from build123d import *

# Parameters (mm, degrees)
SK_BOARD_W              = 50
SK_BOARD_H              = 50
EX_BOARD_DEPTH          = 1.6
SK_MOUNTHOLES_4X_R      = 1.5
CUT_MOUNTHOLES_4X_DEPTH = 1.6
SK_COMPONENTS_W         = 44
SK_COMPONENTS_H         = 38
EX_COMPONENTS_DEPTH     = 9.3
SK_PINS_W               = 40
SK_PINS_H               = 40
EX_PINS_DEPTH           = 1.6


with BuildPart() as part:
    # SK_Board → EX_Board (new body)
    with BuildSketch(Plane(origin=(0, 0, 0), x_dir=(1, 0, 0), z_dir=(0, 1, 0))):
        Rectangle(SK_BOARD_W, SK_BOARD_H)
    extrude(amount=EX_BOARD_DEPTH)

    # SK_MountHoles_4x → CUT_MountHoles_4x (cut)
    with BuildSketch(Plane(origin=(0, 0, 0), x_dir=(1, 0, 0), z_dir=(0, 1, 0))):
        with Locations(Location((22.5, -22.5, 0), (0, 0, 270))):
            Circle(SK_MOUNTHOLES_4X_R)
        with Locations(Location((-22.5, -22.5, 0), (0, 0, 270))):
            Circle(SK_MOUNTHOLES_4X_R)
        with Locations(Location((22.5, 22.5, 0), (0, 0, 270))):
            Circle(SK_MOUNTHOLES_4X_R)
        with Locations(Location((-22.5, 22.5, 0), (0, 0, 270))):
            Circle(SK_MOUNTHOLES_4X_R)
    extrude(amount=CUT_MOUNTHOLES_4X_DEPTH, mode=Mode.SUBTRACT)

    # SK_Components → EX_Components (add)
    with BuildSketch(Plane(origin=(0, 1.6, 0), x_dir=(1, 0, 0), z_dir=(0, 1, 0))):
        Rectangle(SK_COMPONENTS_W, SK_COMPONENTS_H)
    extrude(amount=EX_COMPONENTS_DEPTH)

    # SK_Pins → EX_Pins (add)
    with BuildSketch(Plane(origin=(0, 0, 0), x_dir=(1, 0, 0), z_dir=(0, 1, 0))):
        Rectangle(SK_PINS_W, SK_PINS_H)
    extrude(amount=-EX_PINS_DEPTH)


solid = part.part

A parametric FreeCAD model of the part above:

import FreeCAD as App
import Part
import Sketcher

V = App.Vector
Q = App.Units.Quantity

doc = App.newDocument("Part")
params = doc.addObject("Spreadsheet::Sheet", "Params")
for row, (alias, value) in enumerate([
    ("sketch1_width", "50 mm"),
    ("pad1_length", "1.6 mm"),
    ("sketch2_diameter", "3 mm"),
    ("pocket1_length", "1.6 mm"),
    ("sketch3_width", "44 mm"),
    ("sketch3_height", "38 mm"),
    ("pad2_length", "9.3 mm"),
    ("sketch4_width", "40 mm"),
    ("pad3_length", "1.6 mm"),
], start=1):
    params.set(f"A{row}", alias)
    params.set(f"B{row}", "=" + value)
    params.setAlias(f"B{row}", alias)

body = doc.addObject("PartDesign::Body", "Body")

sketch1 = doc.addObject("Sketcher::SketchObject", "Sketch")
body.addObject(sketch1)
sketch1.AttachmentSupport = (doc.XZ_Plane, [""])
sketch1.MapMode = "FlatFace"
sketch1.addGeometry([
    Part.LineSegment(V(-25, -25, 0), V(-25, 25, 0)),
    Part.LineSegment(V(-25, 25, 0), V(25, 25, 0)),
    Part.LineSegment(V(25, 25, 0), V(25, -25, 0)),
    Part.LineSegment(V(25, -25, 0), V(-25, -25, 0)),
], False)
sketch1.addConstraint([
    Sketcher.Constraint("Coincident", 0, 2, 1, 1),
    Sketcher.Constraint("Coincident", 1, 2, 2, 1),
    Sketcher.Constraint("Coincident", 2, 2, 3, 1),
    Sketcher.Constraint("Coincident", 3, 2, 0, 1),
    Sketcher.Constraint("Vertical", 0),
    Sketcher.Constraint("Horizontal", 1),
    Sketcher.Constraint("Vertical", 2),
    Sketcher.Constraint("Horizontal", 3),
    Sketcher.Constraint("Symmetric", 0, 2, 2, 2, -1, 1),
    Sketcher.Constraint("Equal", 3, 0),
    Sketcher.Constraint("DistanceX", 1, 1, 1, 2, Q("50 mm")),
])
sketch1.setExpression("Constraints[10]", "Params.sketch1_width")
pad1 = doc.addObject("PartDesign::Pad", "Pad")
body.addObject(pad1)
pad1.Profile = sketch1
pad1.setExpression("Length", "Params.pad1_length")
pad1.Reversed = True

sketch2 = doc.addObject("Sketcher::SketchObject", "Sketch001")
body.addObject(sketch2)
sketch2.AttachmentSupport = (doc.XZ_Plane, [""])
sketch2.MapMode = "FlatFace"
sketch2.addGeometry([
    Part.Circle(V(22.5, 22.5, 0), V(0, 0, 1), 1.5),
    Part.Circle(V(-22.5, 22.5, 0), V(0, 0, 1), 1.5),
    Part.Circle(V(22.5, -22.5, 0), V(0, 0, 1), 1.5),
    Part.Circle(V(-22.5, -22.5, 0), V(0, 0, 1), 1.5),
], False)
sketch2.addConstraint([
    Sketcher.Constraint("Equal", 0, 1),
    Sketcher.Constraint("Equal", 1, 2),
    Sketcher.Constraint("Equal", 2, 3),
    Sketcher.Constraint("Symmetric", 1, 3, 2, 3, -1, 1),
    Sketcher.Constraint("Symmetric", 0, 3, 3, 3, -1, 1),
    Sketcher.Constraint("Symmetric", 0, 3, 1, 3, -2),
    Sketcher.Constraint("Diameter", 0, Q("3 mm")),
    Sketcher.Constraint("DistanceX", 1, 3, 0, 3, Q("45 mm")),
    Sketcher.Constraint("DistanceY", 2, 3, 0, 3, Q("45 mm")),
])
sketch2.setExpression("Constraints[6]", "Params.sketch2_diameter")
pocket1 = doc.addObject("PartDesign::Pocket", "Pocket")
body.addObject(pocket1)
pocket1.Profile = sketch2
pocket1.setExpression("Length", "Params.pocket1_length")

sketch3 = doc.addObject("Sketcher::SketchObject", "Sketch002")
body.addObject(sketch3)
sketch3.AttachmentSupport = (doc.XZ_Plane, [""])
sketch3.MapMode = "FlatFace"
sketch3.AttachmentOffset = App.Placement(V(0, 0, -1.6), App.Rotation())
sketch3.addGeometry([
    Part.LineSegment(V(-22, -19, 0), V(-22, 19, 0)),
    Part.LineSegment(V(-22, 19, 0), V(22, 19, 0)),
    Part.LineSegment(V(22, 19, 0), V(22, -19, 0)),
    Part.LineSegment(V(22, -19, 0), V(-22, -19, 0)),
], False)
sketch3.addConstraint([
    Sketcher.Constraint("Coincident", 0, 2, 1, 1),
    Sketcher.Constraint("Coincident", 1, 2, 2, 1),
    Sketcher.Constraint("Coincident", 2, 2, 3, 1),
    Sketcher.Constraint("Coincident", 3, 2, 0, 1),
    Sketcher.Constraint("Vertical", 0),
    Sketcher.Constraint("Horizontal", 1),
    Sketcher.Constraint("Vertical", 2),
    Sketcher.Constraint("Horizontal", 3),
    Sketcher.Constraint("Symmetric", 0, 2, 2, 2, -1, 1),
    Sketcher.Constraint("DistanceX", 1, 1, 1, 2, Q("44 mm")),
    Sketcher.Constraint("DistanceY", 0, 1, 0, 2, Q("38 mm")),
])
sketch3.setExpression("Constraints[9]", "Params.sketch3_width")
sketch3.setExpression("Constraints[10]", "Params.sketch3_height")
pad2 = doc.addObject("PartDesign::Pad", "Pad001")
body.addObject(pad2)
pad2.Profile = sketch3
pad2.setExpression("Length", "Params.pad2_length")
pad2.Reversed = True

sketch4 = doc.addObject("Sketcher::SketchObject", "Sketch003")
body.addObject(sketch4)
sketch4.AttachmentSupport = (doc.XZ_Plane, [""])
sketch4.MapMode = "FlatFace"
sketch4.addGeometry([
    Part.LineSegment(V(-20, -20, 0), V(-20, 20, 0)),
    Part.LineSegment(V(-20, 20, 0), V(20, 20, 0)),
    Part.LineSegment(V(20, 20, 0), V(20, -20, 0)),
    Part.LineSegment(V(20, -20, 0), V(-20, -20, 0)),
], False)
sketch4.addConstraint([
    Sketcher.Constraint("Coincident", 0, 2, 1, 1),
    Sketcher.Constraint("Coincident", 1, 2, 2, 1),
    Sketcher.Constraint("Coincident", 2, 2, 3, 1),
    Sketcher.Constraint("Coincident", 3, 2, 0, 1),
    Sketcher.Constraint("Vertical", 0),
    Sketcher.Constraint("Horizontal", 1),
    Sketcher.Constraint("Vertical", 2),
    Sketcher.Constraint("Horizontal", 3),
    Sketcher.Constraint("Symmetric", 0, 2, 2, 2, -1, 1),
    Sketcher.Constraint("Equal", 3, 0),
    Sketcher.Constraint("DistanceX", 1, 1, 1, 2, Q("40 mm")),
])
sketch4.setExpression("Constraints[10]", "Params.sketch4_width")
pad3 = doc.addObject("PartDesign::Pad", "Pad002")
body.addObject(pad3)
pad3.Profile = sketch4
pad3.setExpression("Length", "Params.pad3_length")

doc.recompute()
